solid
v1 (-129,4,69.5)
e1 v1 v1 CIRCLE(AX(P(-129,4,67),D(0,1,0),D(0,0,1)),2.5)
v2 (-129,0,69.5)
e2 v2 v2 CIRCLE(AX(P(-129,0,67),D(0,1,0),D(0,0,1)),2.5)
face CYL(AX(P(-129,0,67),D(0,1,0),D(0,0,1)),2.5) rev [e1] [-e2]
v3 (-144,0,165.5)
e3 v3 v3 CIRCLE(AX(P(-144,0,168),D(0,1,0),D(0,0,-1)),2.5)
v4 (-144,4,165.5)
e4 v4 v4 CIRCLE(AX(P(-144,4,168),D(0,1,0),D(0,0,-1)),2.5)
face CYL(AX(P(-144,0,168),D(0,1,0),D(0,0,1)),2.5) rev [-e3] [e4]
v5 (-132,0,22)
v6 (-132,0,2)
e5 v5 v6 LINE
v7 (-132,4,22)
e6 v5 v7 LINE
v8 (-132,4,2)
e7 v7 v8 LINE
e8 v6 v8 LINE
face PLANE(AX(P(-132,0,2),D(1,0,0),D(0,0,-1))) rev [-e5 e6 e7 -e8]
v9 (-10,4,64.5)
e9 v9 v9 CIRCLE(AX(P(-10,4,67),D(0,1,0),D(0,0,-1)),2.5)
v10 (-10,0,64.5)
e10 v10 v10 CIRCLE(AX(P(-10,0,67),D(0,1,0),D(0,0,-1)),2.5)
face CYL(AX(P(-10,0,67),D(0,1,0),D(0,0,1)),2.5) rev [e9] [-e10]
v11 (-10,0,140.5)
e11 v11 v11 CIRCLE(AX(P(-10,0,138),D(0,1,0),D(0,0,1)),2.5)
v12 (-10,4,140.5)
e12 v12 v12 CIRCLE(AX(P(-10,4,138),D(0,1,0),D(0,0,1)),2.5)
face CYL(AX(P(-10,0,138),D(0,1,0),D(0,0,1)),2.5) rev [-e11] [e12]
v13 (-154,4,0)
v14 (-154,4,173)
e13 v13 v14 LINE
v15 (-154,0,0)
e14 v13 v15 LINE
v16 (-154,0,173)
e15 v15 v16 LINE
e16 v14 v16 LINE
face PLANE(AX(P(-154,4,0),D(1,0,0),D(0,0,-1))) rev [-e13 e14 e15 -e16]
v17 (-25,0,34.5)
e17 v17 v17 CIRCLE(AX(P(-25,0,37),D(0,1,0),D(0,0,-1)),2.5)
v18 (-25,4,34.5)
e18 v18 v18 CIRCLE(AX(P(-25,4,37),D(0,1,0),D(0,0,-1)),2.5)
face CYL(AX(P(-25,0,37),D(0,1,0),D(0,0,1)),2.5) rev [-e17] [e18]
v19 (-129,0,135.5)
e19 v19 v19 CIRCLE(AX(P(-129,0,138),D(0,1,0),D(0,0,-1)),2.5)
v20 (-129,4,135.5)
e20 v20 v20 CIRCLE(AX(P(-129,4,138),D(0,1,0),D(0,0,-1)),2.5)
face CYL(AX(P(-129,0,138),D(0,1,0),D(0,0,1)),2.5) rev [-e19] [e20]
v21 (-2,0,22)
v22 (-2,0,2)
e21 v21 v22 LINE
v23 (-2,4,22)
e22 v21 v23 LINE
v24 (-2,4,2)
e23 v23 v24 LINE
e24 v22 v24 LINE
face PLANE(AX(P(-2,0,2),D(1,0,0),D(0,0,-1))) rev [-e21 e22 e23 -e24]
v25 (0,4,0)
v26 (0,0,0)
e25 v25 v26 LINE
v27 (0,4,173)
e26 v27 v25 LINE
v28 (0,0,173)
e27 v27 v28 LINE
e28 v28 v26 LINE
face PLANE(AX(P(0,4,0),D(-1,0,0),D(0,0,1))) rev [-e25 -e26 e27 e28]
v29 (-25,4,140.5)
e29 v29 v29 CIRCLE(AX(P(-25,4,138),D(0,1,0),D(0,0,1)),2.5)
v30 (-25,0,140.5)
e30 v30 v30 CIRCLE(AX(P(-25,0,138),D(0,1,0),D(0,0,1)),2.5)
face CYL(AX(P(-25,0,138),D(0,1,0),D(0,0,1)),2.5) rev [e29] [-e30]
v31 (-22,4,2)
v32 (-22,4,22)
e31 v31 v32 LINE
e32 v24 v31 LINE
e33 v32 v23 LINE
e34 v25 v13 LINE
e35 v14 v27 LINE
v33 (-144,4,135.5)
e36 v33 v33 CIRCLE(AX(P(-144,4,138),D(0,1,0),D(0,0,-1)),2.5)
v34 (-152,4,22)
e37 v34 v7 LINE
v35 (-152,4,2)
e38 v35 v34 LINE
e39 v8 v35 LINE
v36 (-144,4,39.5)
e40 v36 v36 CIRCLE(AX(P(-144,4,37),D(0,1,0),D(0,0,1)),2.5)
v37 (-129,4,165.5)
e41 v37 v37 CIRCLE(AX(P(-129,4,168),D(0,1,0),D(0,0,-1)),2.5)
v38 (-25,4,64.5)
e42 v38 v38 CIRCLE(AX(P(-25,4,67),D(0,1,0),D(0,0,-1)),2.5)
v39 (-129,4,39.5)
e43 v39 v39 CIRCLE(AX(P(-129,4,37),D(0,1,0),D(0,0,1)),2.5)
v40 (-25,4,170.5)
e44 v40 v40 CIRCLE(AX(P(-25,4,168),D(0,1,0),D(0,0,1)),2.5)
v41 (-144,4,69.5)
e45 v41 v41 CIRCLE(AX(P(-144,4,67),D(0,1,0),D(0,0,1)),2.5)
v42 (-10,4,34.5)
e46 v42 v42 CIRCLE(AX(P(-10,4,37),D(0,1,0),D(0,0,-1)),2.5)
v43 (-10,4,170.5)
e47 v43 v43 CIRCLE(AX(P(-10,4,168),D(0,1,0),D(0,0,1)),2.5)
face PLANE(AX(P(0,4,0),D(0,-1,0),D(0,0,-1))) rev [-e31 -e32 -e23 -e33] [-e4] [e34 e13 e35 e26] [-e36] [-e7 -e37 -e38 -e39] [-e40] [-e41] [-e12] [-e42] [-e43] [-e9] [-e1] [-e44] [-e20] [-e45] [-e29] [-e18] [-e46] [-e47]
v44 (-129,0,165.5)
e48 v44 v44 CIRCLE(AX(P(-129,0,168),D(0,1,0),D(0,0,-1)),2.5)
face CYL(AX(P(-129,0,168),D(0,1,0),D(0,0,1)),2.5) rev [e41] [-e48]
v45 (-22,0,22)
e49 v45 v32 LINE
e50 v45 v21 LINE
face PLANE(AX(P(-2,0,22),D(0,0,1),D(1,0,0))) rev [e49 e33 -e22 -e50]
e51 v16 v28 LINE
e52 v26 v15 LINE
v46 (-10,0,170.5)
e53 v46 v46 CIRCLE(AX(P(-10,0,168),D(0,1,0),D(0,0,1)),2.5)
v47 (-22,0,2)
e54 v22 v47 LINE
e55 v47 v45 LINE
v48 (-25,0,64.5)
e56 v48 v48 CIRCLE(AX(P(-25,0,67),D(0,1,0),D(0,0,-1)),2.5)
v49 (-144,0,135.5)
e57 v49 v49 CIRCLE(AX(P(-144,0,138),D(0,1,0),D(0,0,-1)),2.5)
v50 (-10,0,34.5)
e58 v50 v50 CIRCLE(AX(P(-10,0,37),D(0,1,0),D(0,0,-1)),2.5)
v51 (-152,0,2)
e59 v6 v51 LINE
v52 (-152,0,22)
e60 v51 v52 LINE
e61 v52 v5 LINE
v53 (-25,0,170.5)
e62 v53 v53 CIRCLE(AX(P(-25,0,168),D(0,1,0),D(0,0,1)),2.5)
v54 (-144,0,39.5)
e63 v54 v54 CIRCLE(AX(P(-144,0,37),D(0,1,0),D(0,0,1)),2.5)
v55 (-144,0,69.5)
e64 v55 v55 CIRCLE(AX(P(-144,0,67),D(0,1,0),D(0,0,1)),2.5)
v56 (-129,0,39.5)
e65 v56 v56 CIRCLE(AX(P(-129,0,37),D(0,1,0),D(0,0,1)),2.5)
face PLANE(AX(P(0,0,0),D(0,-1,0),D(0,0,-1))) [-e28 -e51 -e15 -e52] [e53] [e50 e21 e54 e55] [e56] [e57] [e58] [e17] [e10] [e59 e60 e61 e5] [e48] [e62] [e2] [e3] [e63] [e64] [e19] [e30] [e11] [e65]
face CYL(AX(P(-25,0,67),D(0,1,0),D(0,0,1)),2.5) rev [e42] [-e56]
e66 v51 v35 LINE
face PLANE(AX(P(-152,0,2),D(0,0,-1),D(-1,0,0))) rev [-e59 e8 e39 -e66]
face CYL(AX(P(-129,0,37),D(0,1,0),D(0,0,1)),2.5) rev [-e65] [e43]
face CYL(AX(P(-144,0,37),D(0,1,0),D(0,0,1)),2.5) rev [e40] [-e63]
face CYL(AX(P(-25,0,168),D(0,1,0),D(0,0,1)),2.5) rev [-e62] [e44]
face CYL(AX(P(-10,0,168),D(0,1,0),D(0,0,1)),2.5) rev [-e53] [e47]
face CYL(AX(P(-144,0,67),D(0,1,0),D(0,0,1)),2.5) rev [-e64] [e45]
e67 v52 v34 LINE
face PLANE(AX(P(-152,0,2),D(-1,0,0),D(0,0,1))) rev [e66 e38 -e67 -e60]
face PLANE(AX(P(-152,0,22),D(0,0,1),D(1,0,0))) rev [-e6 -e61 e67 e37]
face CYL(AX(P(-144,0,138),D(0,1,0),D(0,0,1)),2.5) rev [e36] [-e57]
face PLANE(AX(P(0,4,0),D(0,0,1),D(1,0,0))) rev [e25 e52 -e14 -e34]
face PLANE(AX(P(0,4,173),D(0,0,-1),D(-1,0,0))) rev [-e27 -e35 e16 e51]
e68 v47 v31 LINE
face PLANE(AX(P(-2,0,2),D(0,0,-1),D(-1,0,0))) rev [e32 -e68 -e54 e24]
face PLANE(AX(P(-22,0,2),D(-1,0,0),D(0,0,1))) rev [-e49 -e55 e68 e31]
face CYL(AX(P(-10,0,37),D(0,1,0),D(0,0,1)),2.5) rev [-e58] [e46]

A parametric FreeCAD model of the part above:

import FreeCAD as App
import Part
import Sketcher
from FreeCAD import Vector


def add_polygon(sketch, points):
    """Adds a closed chain of lines whose ends are joined by coincident constraints."""
    first, n = sketch.GeometryCount, len(points)
    for a, b in zip(points, points[1:] + points[:1]):
        sketch.addGeometry(Part.LineSegment(App.Vector(*a, 0), App.Vector(*b, 0)), False)
    for i in range(n):
        sketch.addConstraint(Sketcher.Constraint("Coincident", first + i, 2, first + (i + 1) % n, 1))

doc = App.newDocument("Part")
body = doc.addObject("PartDesign::Body", "Body")

# Sketch on XZ plane
sketch1 = body.newObject("Sketcher::SketchObject", "Sketch")
sketch1.AttachmentSupport = (doc.getObject("XZ_Plane"), [""])
sketch1.MapMode = "FlatFace"
add_polygon(sketch1, [(-154, 0), (-154, 173), (0, 173), (0, 0)])  # lines 0-3
sketch1.addConstraint(Sketcher.Constraint("Vertical", 0))
sketch1.addConstraint(Sketcher.Constraint("Horizontal", 1))
sketch1.addConstraint(Sketcher.Constraint("Vertical", 2))
sketch1.addConstraint(Sketcher.Constraint("Horizontal", 3))
sketch1.addConstraint(Sketcher.Constraint("Coincident", 2, 2, -1, 1))
sketch1.addConstraint(Sketcher.Constraint("DistanceX", 1, 1, 1, 2, 154.0))
sketch1.addConstraint(Sketcher.Constraint("DistanceY", 0, 1, 0, 2, 173.0))
pad1 = body.newObject("PartDesign::Pad", "Pad")
pad1.Profile = sketch1
pad1.Length = 4
pad1.Reversed = True

# Sketch on XZ plane
sketch2 = body.newObject("Sketcher::SketchObject", "Sketch001")
sketch2.AttachmentSupport = (doc.getObject("XZ_Plane"), [""])
sketch2.MapMode = "FlatFace"
sketch2.AttachmentOffset = App.Placement(Vector(0, 0, -4), App.Rotation())
sketch2.addGeometry(Part.Circle(Vector(-144, 37, 0), Vector(0, 0, 1), 2.5), False)  # 0
sketch2.addGeometry(Part.Circle(Vector(-129, 37, 0), Vector(0, 0, 1), 2.5), False)  # 1
sketch2.addGeometry(Part.Circle(Vector(-144, 67, 0), Vector(0, 0, 1), 2.5), False)  # 2
sketch2.addGeometry(Part.Circle(Vector(-129, 67, 0), Vector(0, 0, 1), 2.5), False)  # 3
sketch2.addGeometry(Part.Circle(Vector(-25, 67, 0), Vector(0, 0, 1), 2.5), False)  # 4
sketch2.addGeometry(Part.Circle(Vector(-10, 67, 0), Vector(0, 0, 1), 2.5), False)  # 5
sketch2.addGeometry(Part.Circle(Vector(-25, 37, 0), Vector(0, 0, 1), 2.5), False)  # 6
sketch2.addGeometry(Part.Circle(Vector(-10, 37, 0), Vector(0, 0, 1), 2.5), False)  # 7
sketch2.addGeometry(Part.Circle(Vector(-10, 168, 0), Vector(0, 0, 1), 2.5), False)  # 8
sketch2.addGeometry(Part.Circle(Vector(-25, 168, 0), Vector(0, 0, 1), 2.5), False)  # 9
sketch2.addGeometry(Part.Circle(Vector(-10, 138, 0), Vector(0, 0, 1), 2.5), False)  # 10
sketch2.addGeometry(Part.Circle(Vector(-25, 138, 0), Vector(0, 0, 1), 2.5), False)  # 11
sketch2.addGeometry(Part.Circle(Vector(-129, 138, 0), Vector(0, 0, 1), 2.5), False)  # 12
sketch2.addGeometry(Part.Circle(Vector(-144, 138, 0), Vector(0, 0, 1), 2.5), False)  # 13
sketch2.addGeometry(Part.Circle(Vector(-129, 168, 0), Vector(0, 0, 1), 2.5), False)  # 14
sketch2.addGeometry(Part.Circle(Vector(-144, 168, 0), Vector(0, 0, 1), 2.5), False)  # 15
add_polygon(sketch2, [(-152, 2), (-152, 22), (-132, 22), (-132, 2)])  # lines 16-19
add_polygon(sketch2, [(-22, 2), (-22, 22), (-2, 22), (-2, 2)])  # lines 20-23
sketch2.addConstraint(Sketcher.Constraint("Vertical", 16))
sketch2.addConstraint(Sketcher.Constraint("Horizontal", 17))
sketch2.addConstraint(Sketcher.Constraint("Vertical", 18))
sketch2.addConstraint(Sketcher.Constraint("Horizontal", 19))
sketch2.addConstraint(Sketcher.Constraint("Vertical", 20))
sketch2.addConstraint(Sketcher.Constraint("Horizontal", 21))
sketch2.addConstraint(Sketcher.Constraint("Vertical", 22))
sketch2.addConstraint(Sketcher.Constraint("Horizontal", 23))
sketch2.addConstraint(Sketcher.Constraint("Equal", 0, 1))
sketch2.addConstraint(Sketcher.Constraint("Equal", 1, 2))
sketch2.addConstraint(Sketcher.Constraint("Equal", 2, 3))
sketch2.addConstraint(Sketcher.Constraint("Equal", 3, 4))
sketch2.addConstraint(Sketcher.Constraint("Equal", 4, 5))
sketch2.addConstraint(Sketcher.Constraint("Equal", 5, 6))
sketch2.addConstraint(Sketcher.Constraint("Equal", 6, 7))
sketch2.addConstraint(Sketcher.Constraint("Equal", 7, 8))
sketch2.addConstraint(Sketcher.Constraint("Equal", 8, 9))
sketch2.addConstraint(Sketcher.Constraint("Equal", 9, 10))
sketch2.addConstraint(Sketcher.Constraint("Equal", 10, 11))
sketch2.addConstraint(Sketcher.Constraint("Equal", 11, 12))
sketch2.addConstraint(Sketcher.Constraint("Equal", 12, 13))
sketch2.addConstraint(Sketcher.Constraint("Equal", 13, 14))
sketch2.addConstraint(Sketcher.Constraint("Equal", 14, 15))
sketch2.addConstraint(Sketcher.Constraint("Horizontal", 0, 3, 1, 3))
sketch2.addConstraint(Sketcher.Constraint("Horizontal", 2, 3, 3, 3))
sketch2.addConstraint(Sketcher.Constraint("Horizontal", 3, 3, 4, 3))
sketch2.addConstraint(Sketcher.Constraint("Horizontal", 4, 3, 5, 3))
sketch2.addConstraint(Sketcher.Constraint("Horizontal", 1, 3, 6, 3))
sketch2.addConstraint(Sketcher.Constraint("Horizontal", 6, 3, 7, 3))
sketch2.addConstraint(Sketcher.Constraint("Horizontal", 8, 3, 9, 3))
sketch2.addConstraint(Sketcher.Constraint("Horizontal", 10, 3, 11, 3))
sketch2.addConstraint(Sketcher.Constraint("Horizontal", 11, 3, 12, 3))
sketch2.addConstraint(Sketcher.Constraint("Horizontal", 12, 3, 13, 3))
sketch2.addConstraint(Sketcher.Constraint("Horizontal", 9, 3, 14, 3))
sketch2.addConstraint(Sketcher.Constraint("Horizontal", 14, 3, 15, 3))
sketch2.addConstraint(Sketcher.Constraint("Horizontal", 17, 2, 20, 2))
sketch2.addConstraint(Sketcher.Constraint("Horizontal", 19, 2, 22, 2))
sketch2.addConstraint(Sketcher.Constraint("Vertical", 0, 3, 2, 3))
sketch2.addConstraint(Sketcher.Constraint("Vertical", 1, 3, 3, 3))
sketch2.addConstraint(Sketcher.Constraint("Vertical", 4, 3, 6, 3))
sketch2.addConstraint(Sketcher.Constraint("Vertical", 5, 3, 7, 3))
sketch2.addConstraint(Sketcher.Constraint("Vertical", 7, 3, 8, 3))
sketch2.addConstraint(Sketcher.Constraint("Vertical", 6, 3, 9, 3))
sketch2.addConstraint(Sketcher.Constraint("Vertical", 8, 3, 10, 3))
sketch2.addConstraint(Sketcher.Constraint("Vertical", 9, 3, 11, 3))
sketch2.addConstraint(Sketcher.Constraint("Vertical", 3, 3, 12, 3))
sketch2.addConstraint(Sketcher.Constraint("Vertical", 2, 3, 13, 3))
sketch2.addConstraint(Sketcher.Constraint("Vertical", 12, 3, 14, 3))
sketch2.addConstraint(Sketcher.Constraint("Vertical", 13, 3, 15, 3))
sketch2.addConstraint(Sketcher.Constraint("Equal", 19, 21))
sketch2.addConstraint(Sketcher.Constraint("Equal", 23, 16))
sketch2.addConstraint(Sketcher.Constraint("Diameter", 0, 5.0))
sketch2.addConstraint(Sketcher.Constraint("DistanceX", 17, 1, 17, 2, 20.0))
sketch2.addConstraint(Sketcher.Constraint("DistanceX", 0, 3, -1, 1, 144.0))
sketch2.addConstraint(Sketcher.Constraint("DistanceY", -1, 1, 0, 3, 37.0))
sketch2.addConstraint(Sketcher.Constraint("DistanceX", 1, 3, -1, 1, 129.0))
sketch2.addConstraint(Sketcher.Constraint("DistanceY", -1, 1, 2, 3, 67.0))
sketch2.addConstraint(Sketcher.Constraint("DistanceX", 4, 3, -1, 1, 25.0))
sketch2.addConstraint(Sketcher.Constraint("DistanceX", 5, 3, -1, 1, 10.0))
sketch2.addConstraint(Sketcher.Constraint("DistanceY", -1, 1, 8, 3, 168.0))
sketch2.addConstraint(Sketcher.Constraint("DistanceY", -1, 1, 10, 3, 138.0))
sketch2.addConstraint(Sketcher.Constraint("DistanceX", 16, 2, -1, 1, 152.0))
sketch2.addConstraint(Sketcher.Constraint("DistanceY", -1, 1, 16, 2, 22.0))
sketch2.addConstraint(Sketcher.Constraint("DistanceX", 20, 2, -1, 1, 22.0))
pocket1 = body.newObject("PartDesign::Pocket", "Pocket")
pocket1.Profile = sketch2
pocket1.Length = 4
pocket1.Reversed = True

doc.recompute()
